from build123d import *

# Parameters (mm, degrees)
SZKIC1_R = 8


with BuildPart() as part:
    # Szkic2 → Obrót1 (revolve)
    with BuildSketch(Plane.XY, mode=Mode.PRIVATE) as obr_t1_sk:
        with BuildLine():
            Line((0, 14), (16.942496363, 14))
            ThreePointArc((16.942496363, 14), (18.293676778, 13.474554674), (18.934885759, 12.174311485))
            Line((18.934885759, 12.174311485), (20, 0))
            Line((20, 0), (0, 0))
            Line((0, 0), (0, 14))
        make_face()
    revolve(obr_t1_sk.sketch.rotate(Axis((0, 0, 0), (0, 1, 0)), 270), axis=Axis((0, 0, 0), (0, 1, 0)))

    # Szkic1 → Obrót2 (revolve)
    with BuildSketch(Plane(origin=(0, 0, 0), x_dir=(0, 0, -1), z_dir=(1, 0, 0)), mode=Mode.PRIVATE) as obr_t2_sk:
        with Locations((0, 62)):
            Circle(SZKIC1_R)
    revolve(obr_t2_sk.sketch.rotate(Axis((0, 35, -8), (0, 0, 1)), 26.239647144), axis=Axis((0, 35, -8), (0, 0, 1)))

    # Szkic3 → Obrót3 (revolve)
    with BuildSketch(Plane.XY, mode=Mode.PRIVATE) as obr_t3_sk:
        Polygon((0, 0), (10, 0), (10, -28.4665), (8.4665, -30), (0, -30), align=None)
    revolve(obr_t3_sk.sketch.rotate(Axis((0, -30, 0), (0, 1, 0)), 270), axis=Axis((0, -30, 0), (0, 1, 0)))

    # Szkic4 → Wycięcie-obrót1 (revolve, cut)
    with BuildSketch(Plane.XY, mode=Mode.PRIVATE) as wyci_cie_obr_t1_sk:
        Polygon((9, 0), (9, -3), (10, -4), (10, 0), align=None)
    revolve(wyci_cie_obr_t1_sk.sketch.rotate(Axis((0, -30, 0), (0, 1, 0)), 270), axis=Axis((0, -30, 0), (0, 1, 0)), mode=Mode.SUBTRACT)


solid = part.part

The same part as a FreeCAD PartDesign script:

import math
import FreeCAD as App
import Part
import Sketcher
Q = App.Units.Quantity

doc = App.newDocument("Part")
params = doc.addObject("Spreadsheet::Sheet", "Params")
for row, (alias, value) in enumerate([
    ("sketch1_radius", "2 mm"),
    ("sketch1_width", "20 mm"),
    ("sketch1_height", "14 mm"),
    ("revolution_angle", "360 deg"),
    ("sketch2_diameter", "16 mm"),
    ("sketch2_height", "10 mm"),
    ("revolution2_angle", "360 deg"),
    ("sketch3_width", "10 mm"),
    ("sketch3_height", "30 mm"),
    ("revolution3_angle", "360 deg"),
    ("sketch4_width", "1 mm"),
    ("sketch4_height", "3 mm"),
    ("sketch4_height2", "4 mm"),
    ("groove_angle", "360 deg"),
], start=1):
    params.set(f"A{row}", alias)
    params.set(f"B{row}", "=" + value)
    params.setAlias(f"B{row}", alias)

body = doc.addObject("PartDesign::Body", "Body")

# Sketch on XY plane
sketch1 = body.newObject("Sketcher::SketchObject", "Sketch")
sketch1.AttachmentSupport = (doc.getObject("XY_Plane"), [""])
sketch1.MapMode = "FlatFace"
sketch1.addGeometry([
    Part.LineSegment(App.Vector(16.9, 14, 0), App.Vector(0, 14, 0)),  # 0
    Part.LineSegment(App.Vector(0, 14, 0), App.Vector(0, 0, 0)),  # 1
    Part.LineSegment(App.Vector(0, 0, 0), App.Vector(20, 0, 0)),  # 2
    Part.LineSegment(App.Vector(20, 0, 0), App.Vector(18.9, 12.2, 0)),  # 3
    Part.ArcOfCircle(Part.Circle(App.Vector(16.9, 12, 0), App.Vector(0, 0, 1), 2), math.radians(5), math.radians(90)),  # 4
], False)
sketch1.addConstraint([
    Sketcher.Constraint("Coincident", 0, 2, 1, 1),
    Sketcher.Constraint("Coincident", 1, 2, 2, 1),
    Sketcher.Constraint("Coincident", 2, 2, 3, 1),
    Sketcher.Constraint("Tangent", 3, 2, 4, 1),
    Sketcher.Constraint("Tangent", 4, 2, 0, 1),
    Sketcher.Constraint("Horizontal", 0),
    Sketcher.Constraint("Vertical", 1),
    Sketcher.Constraint("Horizontal", 2),
    Sketcher.Constraint("Coincident", 1, 2, -1, 1),
    Sketcher.Constraint("Radius", 4, Q("2 mm")),
    Sketcher.Constraint("DistanceX", 2, 1, 2, 2, Q("20 mm")),
    Sketcher.Constraint("DistanceY", 1, 2, 1, 1, Q("14 mm")),
    Sketcher.Constraint("Angle", 3, Q("95 deg")),
])
sketch1.setExpression("Constraints[9]", "Params.sketch1_radius")
sketch1.setExpression("Constraints[10]", "Params.sketch1_width")
sketch1.setExpression("Constraints[11]", "Params.sketch1_height")
revolution = body.newObject("PartDesign::Revolution", "Revolution")
revolution.Profile = sketch1
revolution.ReferenceAxis = (sketch1, ["V_Axis"])
revolution.setExpression("Angle", "Params.revolution_angle")

# Sketch on YZ plane
sketch2 = body.newObject("Sketcher::SketchObject", "Sketch001")
sketch2.AttachmentSupport = (doc.getObject("YZ_Plane"), [""])
sketch2.MapMode = "FlatFace"
sketch2.addGeometry(Part.Circle(App.Vector(62, 0, 0), App.Vector(0, 0, 1), 8), False)
sketch2.addGeometry(Part.LineSegment(App.Vector(35, 0, 0), App.Vector(35, 10, 0)), True)  # axis
sketch2.addConstraint([
    Sketcher.Constraint("Vertical", 1),
    Sketcher.Constraint("PointOnObject", 0, 3, -1),
    Sketcher.Constraint("PointOnObject", 1, 1, -1),
    Sketcher.Constraint("Diameter", 0, Q("16 mm")),
    Sketcher.Constraint("DistanceY", 1, 1, 1, 2, Q("10 mm")),
    Sketcher.Constraint("DistanceX", -1, 1, 0, 3, Q("62 mm")),
    Sketcher.Constraint("DistanceX", -1, 1, 1, 1, Q("35 mm")),
])
sketch2.setExpression("Constraints[3]", "Params.sketch2_diameter")
sketch2.setExpression("Constraints[4]", "Params.sketch2_height")
revolution2 = body.newObject("PartDesign::Revolution", "Revolution001")
revolution2.Profile = sketch2
revolution2.ReferenceAxis = (sketch2, ["Axis0"])
revolution2.setExpression("Angle", "Params.revolution2_angle")

# Sketch on XY plane
sketch3 = body.newObject("Sketcher::SketchObject", "Sketch002")
sketch3.AttachmentSupport = (doc.getObject("XY_Plane"), [""])
sketch3.MapMode = "FlatFace"
sketch3.addGeometry([
    Part.LineSegment(App.Vector(10, 0, 0), App.Vector(0, 0, 0)),  # 0
    Part.LineSegment(App.Vector(0, 0, 0), App.Vector(0, -30, 0)),  # 1
    Part.LineSegment(App.Vector(0, -30, 0), App.Vector(8.5, -30, 0)),  # 2
    Part.LineSegment(App.Vector(8.5, -30, 0), App.Vector(10, -28.5, 0)),  # 3
    Part.LineSegment(App.Vector(10, -28.5, 0), App.Vector(10, 0, 0)),  # 4
], False)
sketch3.addConstraint([
    Sketcher.Constraint("Coincident", 0, 2, 1, 1),
    Sketcher.Constraint("Coincident", 1, 2, 2, 1),
    Sketcher.Constraint("Coincident", 2, 2, 3, 1),
    Sketcher.Constraint("Coincident", 3, 2, 4, 1),
    Sketcher.Constraint("Coincident", 4, 2, 0, 1),
    Sketcher.Constraint("Horizontal", 0),
    Sketcher.Constraint("Vertical", 1),
    Sketcher.Constraint("Horizontal", 2),
    Sketcher.Constraint("Vertical", 4),
    Sketcher.Constraint("Coincident", 0, 2, -1, 1),
    Sketcher.Constraint("DistanceX", 0, 2, 0, 1, Q("10 mm")),
    Sketcher.Constraint("DistanceY", 1, 2, 1, 1, Q("30 mm")),
    Sketcher.Constraint("Angle", 3, Q("45 deg")),
    Sketcher.Constraint("DistanceX", 2, 1, 2, 2, Q("8.4665 mm")),
])
sketch3.setExpression("Constraints[10]", "Params.sketch3_width")
sketch3.setExpression("Constraints[11]", "Params.sketch3_height")
revolution3 = body.newObject("PartDesign::Revolution", "Revolution002")
revolution3.Profile = sketch3
revolution3.ReferenceAxis = (sketch3, ["V_Axis"])
revolution3.setExpression("Angle", "Params.revolution3_angle")

# Sketch on XY plane
sketch4 = body.newObject("Sketcher::SketchObject", "Sketch003")
sketch4.AttachmentSupport = (doc.getObject("XY_Plane"), [""])
sketch4.MapMode = "FlatFace"
sketch4.addGeometry([
    Part.LineSegment(App.Vector(9, 0, 0), App.Vector(9, -3, 0)),
    Part.LineSegment(App.Vector(9, -3, 0), App.Vector(10, -4, 0)),
    Part.LineSegment(App.Vector(10, -4, 0), App.Vector(10, 0, 0)),
    Part.LineSegment(App.Vector(10, 0, 0), App.Vector(9, 0, 0)),
], False)
sketch4.addConstraint([
    Sketcher.Constraint("Coincident", 0, 2, 1, 1),
    Sketcher.Constraint("Coincident", 1, 2, 2, 1),
    Sketcher.Constraint("Coincident", 2, 2, 3, 1),
    Sketcher.Constraint("Coincident", 3, 2, 0, 1),
    Sketcher.Constraint("Vertical", 0),
    Sketcher.Constraint("Vertical", 2),
    Sketcher.Constraint("Horizontal", 3),
    Sketcher.Constraint("PointOnObject", 2, 2, -1),
    Sketcher.Constraint("DistanceX", 3, 2, 3, 1, Q("1 mm")),
    Sketcher.Constraint("DistanceY", 0, 2, 0, 1, Q("3 mm")),
    Sketcher.Constraint("DistanceY", 2, 1, 2, 2, Q("4 mm")),
    Sketcher.Constraint("DistanceX", -1, 1, 0, 2, Q("9 mm")),
])
sketch4.setExpression("Constraints[8]", "Params.sketch4_width")
sketch4.setExpression("Constraints[9]", "Params.sketch4_height")
sketch4.setExpression("Constraints[10]", "Params.sketch4_height2")
groove = body.newObject("PartDesign::Groove", "Groove")
groove.Profile = sketch4
groove.ReferenceAxis = (sketch4, ["V_Axis"])
groove.setExpression("Angle", "Params.groove_angle")

doc.recompute()
